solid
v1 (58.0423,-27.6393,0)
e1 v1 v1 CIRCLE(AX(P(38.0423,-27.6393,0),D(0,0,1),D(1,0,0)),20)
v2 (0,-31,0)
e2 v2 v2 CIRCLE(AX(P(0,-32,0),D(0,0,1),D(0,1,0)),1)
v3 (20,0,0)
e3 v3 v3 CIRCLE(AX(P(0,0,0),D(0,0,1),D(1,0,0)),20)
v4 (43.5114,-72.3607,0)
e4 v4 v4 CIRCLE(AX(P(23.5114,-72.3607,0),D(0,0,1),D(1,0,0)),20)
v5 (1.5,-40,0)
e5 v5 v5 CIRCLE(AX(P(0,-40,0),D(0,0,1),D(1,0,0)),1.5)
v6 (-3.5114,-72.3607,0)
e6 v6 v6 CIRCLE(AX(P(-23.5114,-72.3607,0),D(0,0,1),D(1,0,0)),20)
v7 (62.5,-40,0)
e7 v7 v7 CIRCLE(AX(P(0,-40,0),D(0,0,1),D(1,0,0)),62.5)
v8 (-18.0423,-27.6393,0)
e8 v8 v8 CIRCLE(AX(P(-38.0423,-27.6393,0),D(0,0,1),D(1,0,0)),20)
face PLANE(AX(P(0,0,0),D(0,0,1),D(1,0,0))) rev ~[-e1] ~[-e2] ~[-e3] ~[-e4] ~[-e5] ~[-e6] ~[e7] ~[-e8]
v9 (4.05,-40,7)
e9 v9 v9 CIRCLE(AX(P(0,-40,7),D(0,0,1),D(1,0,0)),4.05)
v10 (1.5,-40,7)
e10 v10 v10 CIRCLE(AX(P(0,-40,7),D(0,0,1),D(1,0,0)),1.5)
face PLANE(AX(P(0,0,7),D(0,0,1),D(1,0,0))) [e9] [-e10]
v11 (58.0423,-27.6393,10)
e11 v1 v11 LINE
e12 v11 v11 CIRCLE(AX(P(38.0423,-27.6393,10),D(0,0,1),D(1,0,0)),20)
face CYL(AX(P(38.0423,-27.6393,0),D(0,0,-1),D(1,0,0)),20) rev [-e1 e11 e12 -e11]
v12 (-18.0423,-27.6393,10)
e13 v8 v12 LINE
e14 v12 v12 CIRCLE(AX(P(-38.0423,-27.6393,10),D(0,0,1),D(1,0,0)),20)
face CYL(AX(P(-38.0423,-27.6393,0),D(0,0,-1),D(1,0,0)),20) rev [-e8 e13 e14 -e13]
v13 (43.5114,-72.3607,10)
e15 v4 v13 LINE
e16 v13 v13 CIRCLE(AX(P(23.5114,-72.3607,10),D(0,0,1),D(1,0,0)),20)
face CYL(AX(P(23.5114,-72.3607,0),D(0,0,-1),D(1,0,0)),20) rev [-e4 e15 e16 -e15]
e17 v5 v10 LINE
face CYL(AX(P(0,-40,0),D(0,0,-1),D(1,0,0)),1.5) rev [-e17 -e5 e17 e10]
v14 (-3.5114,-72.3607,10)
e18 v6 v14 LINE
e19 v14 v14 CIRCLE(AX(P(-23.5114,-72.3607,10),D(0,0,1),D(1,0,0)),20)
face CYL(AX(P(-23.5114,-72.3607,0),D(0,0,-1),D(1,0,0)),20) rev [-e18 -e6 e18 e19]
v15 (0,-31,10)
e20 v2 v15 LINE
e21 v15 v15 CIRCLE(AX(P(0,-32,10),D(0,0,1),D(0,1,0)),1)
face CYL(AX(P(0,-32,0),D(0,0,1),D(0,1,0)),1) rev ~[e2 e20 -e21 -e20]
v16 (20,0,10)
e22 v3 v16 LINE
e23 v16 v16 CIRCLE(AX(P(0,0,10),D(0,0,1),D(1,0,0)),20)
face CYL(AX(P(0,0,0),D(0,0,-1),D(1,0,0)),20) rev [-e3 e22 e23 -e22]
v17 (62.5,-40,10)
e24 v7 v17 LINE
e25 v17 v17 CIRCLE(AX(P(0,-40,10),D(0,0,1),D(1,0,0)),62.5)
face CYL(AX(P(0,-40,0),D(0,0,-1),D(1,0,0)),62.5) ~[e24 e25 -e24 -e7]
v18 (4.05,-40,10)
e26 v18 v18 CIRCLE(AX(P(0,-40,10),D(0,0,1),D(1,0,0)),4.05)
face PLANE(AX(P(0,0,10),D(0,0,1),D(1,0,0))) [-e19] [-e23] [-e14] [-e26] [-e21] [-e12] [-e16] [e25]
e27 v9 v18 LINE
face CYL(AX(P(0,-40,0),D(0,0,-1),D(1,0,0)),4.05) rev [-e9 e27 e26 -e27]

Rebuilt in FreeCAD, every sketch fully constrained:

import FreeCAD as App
import Part
import Sketcher
from FreeCAD import Vector
Q = App.Units.Quantity

doc = App.newDocument("Part")
body = doc.addObject("PartDesign::Body", "Body")

# Sketch on XY plane
sketch1 = doc.addObject("Sketcher::SketchObject", "Sketch")
body.addObject(sketch1)
sketch1.AttachmentSupport = (doc.XY_Plane, [""])
sketch1.MapMode = "FlatFace"
sketch1.addGeometry([
    Part.Circle(Vector(0, -40, 0), Vector(0, 0, 1), 62.5),  # 0
    Part.Circle(Vector(-23.5, -72.4, 0), Vector(0, 0, 1), 20),  # 1
    Part.Circle(Vector(23.5, -72.4, 0), Vector(0, 0, 1), 20),  # 2
    Part.Circle(Vector(-38, -27.6, 0), Vector(0, 0, 1), 20),  # 3
    Part.Circle(Vector(0, -40, 0), Vector(0, 0, 1), 4),  # 4
    Part.Circle(Vector(38, -27.6, 0), Vector(0, 0, 1), 20),  # 5
    Part.Circle(Vector(0, 0, 0), Vector(0, 0, 1), 20),  # 6
], False)
sketch1.addConstraint([
    Sketcher.Constraint("Coincident", 6, 3, -1, 1),
    Sketcher.Constraint("Coincident", 4, 3, 0, 3),
    Sketcher.Constraint("Equal", 1, 2),
    Sketcher.Constraint("Equal", 2, 3),
    Sketcher.Constraint("Equal", 3, 5),
    Sketcher.Constraint("Equal", 5, 6),
    Sketcher.Constraint("Symmetric", 1, 3, 2, 3, -2),
    Sketcher.Constraint("Symmetric", 3, 3, 5, 3, -2),
    Sketcher.Constraint("PointOnObject", 0, 3, -2),
    Sketcher.Constraint("Diameter", 0, Q("125 mm")),
    Sketcher.Constraint("Diameter", 1, Q("40 mm")),
    Sketcher.Constraint("Diameter", 4, Q("8.1 mm")),
    Sketcher.Constraint("DistanceY", 0, 3, -1, 1, Q("40 mm")),
    Sketcher.Constraint("DistanceX", 3, 3, 1, 3, Q("14.531 mm")),
    Sketcher.Constraint("DistanceX", 1, 3, -1, 1, Q("23.5114 mm")),
    Sketcher.Constraint("DistanceY", 1, 3, -1, 1, Q("72.3607 mm")),
    Sketcher.Constraint("DistanceY", 3, 3, -1, 1, Q("27.6393 mm")),
])
pad1 = doc.addObject("PartDesign::Pad", "Pad")
body.addObject(pad1)
pad1.Profile = sketch1
pad1.Length = 10

# Sketch on XY plane
sketch2 = doc.addObject("Sketcher::SketchObject", "Sketch001")
body.addObject(sketch2)
sketch2.AttachmentSupport = (doc.XY_Plane, [""])
sketch2.MapMode = "FlatFace"
sketch2.addGeometry([
    Part.Circle(Vector(0, -40, 0), Vector(0, 0, 1), 4),
    Part.Circle(Vector(0, -40, 0), Vector(0, 0, 1), 1.5),
], False)
sketch2.addConstraint([
    Sketcher.Constraint("Coincident", 1, 3, 0, 3),
    Sketcher.Constraint("PointOnObject", 0, 3, -2),
    Sketcher.Constraint("Diameter", 1, Q("3 mm")),
    Sketcher.Constraint("Diameter", 0, Q("8.1 mm")),
    Sketcher.Constraint("DistanceY", 0, 3, -1, 1, Q("40 mm")),
])
pad2 = doc.addObject("PartDesign::Pad", "Pad001")
body.addObject(pad2)
pad2.Profile = sketch2
pad2.Length = 7

# Sketch on XY plane
sketch3 = doc.addObject("Sketcher::SketchObject", "Sketch002")
body.addObject(sketch3)
sketch3.AttachmentSupport = (doc.XY_Plane, [""])
sketch3.MapMode = "FlatFace"
sketch3.addGeometry([
    Part.Circle(Vector(0, -40, 0), Vector(0, 0, 1), 1),
    Part.Circle(Vector(0, -32, 0), Vector(0, 0, 1), 1),
], False)
sketch3.addConstraint([
    Sketcher.Constraint("Equal", 0, 1),
    Sketcher.Constraint("PointOnObject", 0, 3, -2),
    Sketcher.Constraint("PointOnObject", 1, 3, -2),
    Sketcher.Constraint("Diameter", 0, Q("2 mm")),
    Sketcher.Constraint("DistanceY", 0, 3, -1, 1, Q("40 mm")),
    Sketcher.Constraint("DistanceY", 1, 3, -1, 1, Q("32 mm")),
])
doc.recompute()
hole = doc.addObject("PartDesign::Hole", "Hole")
body.addObject(hole)
hole.Profile = sketch3
hole.ThreadType = "None"
hole.Diameter = 2
hole.DepthType = "ThroughAll"
hole.Reversed = True

doc.recompute()
